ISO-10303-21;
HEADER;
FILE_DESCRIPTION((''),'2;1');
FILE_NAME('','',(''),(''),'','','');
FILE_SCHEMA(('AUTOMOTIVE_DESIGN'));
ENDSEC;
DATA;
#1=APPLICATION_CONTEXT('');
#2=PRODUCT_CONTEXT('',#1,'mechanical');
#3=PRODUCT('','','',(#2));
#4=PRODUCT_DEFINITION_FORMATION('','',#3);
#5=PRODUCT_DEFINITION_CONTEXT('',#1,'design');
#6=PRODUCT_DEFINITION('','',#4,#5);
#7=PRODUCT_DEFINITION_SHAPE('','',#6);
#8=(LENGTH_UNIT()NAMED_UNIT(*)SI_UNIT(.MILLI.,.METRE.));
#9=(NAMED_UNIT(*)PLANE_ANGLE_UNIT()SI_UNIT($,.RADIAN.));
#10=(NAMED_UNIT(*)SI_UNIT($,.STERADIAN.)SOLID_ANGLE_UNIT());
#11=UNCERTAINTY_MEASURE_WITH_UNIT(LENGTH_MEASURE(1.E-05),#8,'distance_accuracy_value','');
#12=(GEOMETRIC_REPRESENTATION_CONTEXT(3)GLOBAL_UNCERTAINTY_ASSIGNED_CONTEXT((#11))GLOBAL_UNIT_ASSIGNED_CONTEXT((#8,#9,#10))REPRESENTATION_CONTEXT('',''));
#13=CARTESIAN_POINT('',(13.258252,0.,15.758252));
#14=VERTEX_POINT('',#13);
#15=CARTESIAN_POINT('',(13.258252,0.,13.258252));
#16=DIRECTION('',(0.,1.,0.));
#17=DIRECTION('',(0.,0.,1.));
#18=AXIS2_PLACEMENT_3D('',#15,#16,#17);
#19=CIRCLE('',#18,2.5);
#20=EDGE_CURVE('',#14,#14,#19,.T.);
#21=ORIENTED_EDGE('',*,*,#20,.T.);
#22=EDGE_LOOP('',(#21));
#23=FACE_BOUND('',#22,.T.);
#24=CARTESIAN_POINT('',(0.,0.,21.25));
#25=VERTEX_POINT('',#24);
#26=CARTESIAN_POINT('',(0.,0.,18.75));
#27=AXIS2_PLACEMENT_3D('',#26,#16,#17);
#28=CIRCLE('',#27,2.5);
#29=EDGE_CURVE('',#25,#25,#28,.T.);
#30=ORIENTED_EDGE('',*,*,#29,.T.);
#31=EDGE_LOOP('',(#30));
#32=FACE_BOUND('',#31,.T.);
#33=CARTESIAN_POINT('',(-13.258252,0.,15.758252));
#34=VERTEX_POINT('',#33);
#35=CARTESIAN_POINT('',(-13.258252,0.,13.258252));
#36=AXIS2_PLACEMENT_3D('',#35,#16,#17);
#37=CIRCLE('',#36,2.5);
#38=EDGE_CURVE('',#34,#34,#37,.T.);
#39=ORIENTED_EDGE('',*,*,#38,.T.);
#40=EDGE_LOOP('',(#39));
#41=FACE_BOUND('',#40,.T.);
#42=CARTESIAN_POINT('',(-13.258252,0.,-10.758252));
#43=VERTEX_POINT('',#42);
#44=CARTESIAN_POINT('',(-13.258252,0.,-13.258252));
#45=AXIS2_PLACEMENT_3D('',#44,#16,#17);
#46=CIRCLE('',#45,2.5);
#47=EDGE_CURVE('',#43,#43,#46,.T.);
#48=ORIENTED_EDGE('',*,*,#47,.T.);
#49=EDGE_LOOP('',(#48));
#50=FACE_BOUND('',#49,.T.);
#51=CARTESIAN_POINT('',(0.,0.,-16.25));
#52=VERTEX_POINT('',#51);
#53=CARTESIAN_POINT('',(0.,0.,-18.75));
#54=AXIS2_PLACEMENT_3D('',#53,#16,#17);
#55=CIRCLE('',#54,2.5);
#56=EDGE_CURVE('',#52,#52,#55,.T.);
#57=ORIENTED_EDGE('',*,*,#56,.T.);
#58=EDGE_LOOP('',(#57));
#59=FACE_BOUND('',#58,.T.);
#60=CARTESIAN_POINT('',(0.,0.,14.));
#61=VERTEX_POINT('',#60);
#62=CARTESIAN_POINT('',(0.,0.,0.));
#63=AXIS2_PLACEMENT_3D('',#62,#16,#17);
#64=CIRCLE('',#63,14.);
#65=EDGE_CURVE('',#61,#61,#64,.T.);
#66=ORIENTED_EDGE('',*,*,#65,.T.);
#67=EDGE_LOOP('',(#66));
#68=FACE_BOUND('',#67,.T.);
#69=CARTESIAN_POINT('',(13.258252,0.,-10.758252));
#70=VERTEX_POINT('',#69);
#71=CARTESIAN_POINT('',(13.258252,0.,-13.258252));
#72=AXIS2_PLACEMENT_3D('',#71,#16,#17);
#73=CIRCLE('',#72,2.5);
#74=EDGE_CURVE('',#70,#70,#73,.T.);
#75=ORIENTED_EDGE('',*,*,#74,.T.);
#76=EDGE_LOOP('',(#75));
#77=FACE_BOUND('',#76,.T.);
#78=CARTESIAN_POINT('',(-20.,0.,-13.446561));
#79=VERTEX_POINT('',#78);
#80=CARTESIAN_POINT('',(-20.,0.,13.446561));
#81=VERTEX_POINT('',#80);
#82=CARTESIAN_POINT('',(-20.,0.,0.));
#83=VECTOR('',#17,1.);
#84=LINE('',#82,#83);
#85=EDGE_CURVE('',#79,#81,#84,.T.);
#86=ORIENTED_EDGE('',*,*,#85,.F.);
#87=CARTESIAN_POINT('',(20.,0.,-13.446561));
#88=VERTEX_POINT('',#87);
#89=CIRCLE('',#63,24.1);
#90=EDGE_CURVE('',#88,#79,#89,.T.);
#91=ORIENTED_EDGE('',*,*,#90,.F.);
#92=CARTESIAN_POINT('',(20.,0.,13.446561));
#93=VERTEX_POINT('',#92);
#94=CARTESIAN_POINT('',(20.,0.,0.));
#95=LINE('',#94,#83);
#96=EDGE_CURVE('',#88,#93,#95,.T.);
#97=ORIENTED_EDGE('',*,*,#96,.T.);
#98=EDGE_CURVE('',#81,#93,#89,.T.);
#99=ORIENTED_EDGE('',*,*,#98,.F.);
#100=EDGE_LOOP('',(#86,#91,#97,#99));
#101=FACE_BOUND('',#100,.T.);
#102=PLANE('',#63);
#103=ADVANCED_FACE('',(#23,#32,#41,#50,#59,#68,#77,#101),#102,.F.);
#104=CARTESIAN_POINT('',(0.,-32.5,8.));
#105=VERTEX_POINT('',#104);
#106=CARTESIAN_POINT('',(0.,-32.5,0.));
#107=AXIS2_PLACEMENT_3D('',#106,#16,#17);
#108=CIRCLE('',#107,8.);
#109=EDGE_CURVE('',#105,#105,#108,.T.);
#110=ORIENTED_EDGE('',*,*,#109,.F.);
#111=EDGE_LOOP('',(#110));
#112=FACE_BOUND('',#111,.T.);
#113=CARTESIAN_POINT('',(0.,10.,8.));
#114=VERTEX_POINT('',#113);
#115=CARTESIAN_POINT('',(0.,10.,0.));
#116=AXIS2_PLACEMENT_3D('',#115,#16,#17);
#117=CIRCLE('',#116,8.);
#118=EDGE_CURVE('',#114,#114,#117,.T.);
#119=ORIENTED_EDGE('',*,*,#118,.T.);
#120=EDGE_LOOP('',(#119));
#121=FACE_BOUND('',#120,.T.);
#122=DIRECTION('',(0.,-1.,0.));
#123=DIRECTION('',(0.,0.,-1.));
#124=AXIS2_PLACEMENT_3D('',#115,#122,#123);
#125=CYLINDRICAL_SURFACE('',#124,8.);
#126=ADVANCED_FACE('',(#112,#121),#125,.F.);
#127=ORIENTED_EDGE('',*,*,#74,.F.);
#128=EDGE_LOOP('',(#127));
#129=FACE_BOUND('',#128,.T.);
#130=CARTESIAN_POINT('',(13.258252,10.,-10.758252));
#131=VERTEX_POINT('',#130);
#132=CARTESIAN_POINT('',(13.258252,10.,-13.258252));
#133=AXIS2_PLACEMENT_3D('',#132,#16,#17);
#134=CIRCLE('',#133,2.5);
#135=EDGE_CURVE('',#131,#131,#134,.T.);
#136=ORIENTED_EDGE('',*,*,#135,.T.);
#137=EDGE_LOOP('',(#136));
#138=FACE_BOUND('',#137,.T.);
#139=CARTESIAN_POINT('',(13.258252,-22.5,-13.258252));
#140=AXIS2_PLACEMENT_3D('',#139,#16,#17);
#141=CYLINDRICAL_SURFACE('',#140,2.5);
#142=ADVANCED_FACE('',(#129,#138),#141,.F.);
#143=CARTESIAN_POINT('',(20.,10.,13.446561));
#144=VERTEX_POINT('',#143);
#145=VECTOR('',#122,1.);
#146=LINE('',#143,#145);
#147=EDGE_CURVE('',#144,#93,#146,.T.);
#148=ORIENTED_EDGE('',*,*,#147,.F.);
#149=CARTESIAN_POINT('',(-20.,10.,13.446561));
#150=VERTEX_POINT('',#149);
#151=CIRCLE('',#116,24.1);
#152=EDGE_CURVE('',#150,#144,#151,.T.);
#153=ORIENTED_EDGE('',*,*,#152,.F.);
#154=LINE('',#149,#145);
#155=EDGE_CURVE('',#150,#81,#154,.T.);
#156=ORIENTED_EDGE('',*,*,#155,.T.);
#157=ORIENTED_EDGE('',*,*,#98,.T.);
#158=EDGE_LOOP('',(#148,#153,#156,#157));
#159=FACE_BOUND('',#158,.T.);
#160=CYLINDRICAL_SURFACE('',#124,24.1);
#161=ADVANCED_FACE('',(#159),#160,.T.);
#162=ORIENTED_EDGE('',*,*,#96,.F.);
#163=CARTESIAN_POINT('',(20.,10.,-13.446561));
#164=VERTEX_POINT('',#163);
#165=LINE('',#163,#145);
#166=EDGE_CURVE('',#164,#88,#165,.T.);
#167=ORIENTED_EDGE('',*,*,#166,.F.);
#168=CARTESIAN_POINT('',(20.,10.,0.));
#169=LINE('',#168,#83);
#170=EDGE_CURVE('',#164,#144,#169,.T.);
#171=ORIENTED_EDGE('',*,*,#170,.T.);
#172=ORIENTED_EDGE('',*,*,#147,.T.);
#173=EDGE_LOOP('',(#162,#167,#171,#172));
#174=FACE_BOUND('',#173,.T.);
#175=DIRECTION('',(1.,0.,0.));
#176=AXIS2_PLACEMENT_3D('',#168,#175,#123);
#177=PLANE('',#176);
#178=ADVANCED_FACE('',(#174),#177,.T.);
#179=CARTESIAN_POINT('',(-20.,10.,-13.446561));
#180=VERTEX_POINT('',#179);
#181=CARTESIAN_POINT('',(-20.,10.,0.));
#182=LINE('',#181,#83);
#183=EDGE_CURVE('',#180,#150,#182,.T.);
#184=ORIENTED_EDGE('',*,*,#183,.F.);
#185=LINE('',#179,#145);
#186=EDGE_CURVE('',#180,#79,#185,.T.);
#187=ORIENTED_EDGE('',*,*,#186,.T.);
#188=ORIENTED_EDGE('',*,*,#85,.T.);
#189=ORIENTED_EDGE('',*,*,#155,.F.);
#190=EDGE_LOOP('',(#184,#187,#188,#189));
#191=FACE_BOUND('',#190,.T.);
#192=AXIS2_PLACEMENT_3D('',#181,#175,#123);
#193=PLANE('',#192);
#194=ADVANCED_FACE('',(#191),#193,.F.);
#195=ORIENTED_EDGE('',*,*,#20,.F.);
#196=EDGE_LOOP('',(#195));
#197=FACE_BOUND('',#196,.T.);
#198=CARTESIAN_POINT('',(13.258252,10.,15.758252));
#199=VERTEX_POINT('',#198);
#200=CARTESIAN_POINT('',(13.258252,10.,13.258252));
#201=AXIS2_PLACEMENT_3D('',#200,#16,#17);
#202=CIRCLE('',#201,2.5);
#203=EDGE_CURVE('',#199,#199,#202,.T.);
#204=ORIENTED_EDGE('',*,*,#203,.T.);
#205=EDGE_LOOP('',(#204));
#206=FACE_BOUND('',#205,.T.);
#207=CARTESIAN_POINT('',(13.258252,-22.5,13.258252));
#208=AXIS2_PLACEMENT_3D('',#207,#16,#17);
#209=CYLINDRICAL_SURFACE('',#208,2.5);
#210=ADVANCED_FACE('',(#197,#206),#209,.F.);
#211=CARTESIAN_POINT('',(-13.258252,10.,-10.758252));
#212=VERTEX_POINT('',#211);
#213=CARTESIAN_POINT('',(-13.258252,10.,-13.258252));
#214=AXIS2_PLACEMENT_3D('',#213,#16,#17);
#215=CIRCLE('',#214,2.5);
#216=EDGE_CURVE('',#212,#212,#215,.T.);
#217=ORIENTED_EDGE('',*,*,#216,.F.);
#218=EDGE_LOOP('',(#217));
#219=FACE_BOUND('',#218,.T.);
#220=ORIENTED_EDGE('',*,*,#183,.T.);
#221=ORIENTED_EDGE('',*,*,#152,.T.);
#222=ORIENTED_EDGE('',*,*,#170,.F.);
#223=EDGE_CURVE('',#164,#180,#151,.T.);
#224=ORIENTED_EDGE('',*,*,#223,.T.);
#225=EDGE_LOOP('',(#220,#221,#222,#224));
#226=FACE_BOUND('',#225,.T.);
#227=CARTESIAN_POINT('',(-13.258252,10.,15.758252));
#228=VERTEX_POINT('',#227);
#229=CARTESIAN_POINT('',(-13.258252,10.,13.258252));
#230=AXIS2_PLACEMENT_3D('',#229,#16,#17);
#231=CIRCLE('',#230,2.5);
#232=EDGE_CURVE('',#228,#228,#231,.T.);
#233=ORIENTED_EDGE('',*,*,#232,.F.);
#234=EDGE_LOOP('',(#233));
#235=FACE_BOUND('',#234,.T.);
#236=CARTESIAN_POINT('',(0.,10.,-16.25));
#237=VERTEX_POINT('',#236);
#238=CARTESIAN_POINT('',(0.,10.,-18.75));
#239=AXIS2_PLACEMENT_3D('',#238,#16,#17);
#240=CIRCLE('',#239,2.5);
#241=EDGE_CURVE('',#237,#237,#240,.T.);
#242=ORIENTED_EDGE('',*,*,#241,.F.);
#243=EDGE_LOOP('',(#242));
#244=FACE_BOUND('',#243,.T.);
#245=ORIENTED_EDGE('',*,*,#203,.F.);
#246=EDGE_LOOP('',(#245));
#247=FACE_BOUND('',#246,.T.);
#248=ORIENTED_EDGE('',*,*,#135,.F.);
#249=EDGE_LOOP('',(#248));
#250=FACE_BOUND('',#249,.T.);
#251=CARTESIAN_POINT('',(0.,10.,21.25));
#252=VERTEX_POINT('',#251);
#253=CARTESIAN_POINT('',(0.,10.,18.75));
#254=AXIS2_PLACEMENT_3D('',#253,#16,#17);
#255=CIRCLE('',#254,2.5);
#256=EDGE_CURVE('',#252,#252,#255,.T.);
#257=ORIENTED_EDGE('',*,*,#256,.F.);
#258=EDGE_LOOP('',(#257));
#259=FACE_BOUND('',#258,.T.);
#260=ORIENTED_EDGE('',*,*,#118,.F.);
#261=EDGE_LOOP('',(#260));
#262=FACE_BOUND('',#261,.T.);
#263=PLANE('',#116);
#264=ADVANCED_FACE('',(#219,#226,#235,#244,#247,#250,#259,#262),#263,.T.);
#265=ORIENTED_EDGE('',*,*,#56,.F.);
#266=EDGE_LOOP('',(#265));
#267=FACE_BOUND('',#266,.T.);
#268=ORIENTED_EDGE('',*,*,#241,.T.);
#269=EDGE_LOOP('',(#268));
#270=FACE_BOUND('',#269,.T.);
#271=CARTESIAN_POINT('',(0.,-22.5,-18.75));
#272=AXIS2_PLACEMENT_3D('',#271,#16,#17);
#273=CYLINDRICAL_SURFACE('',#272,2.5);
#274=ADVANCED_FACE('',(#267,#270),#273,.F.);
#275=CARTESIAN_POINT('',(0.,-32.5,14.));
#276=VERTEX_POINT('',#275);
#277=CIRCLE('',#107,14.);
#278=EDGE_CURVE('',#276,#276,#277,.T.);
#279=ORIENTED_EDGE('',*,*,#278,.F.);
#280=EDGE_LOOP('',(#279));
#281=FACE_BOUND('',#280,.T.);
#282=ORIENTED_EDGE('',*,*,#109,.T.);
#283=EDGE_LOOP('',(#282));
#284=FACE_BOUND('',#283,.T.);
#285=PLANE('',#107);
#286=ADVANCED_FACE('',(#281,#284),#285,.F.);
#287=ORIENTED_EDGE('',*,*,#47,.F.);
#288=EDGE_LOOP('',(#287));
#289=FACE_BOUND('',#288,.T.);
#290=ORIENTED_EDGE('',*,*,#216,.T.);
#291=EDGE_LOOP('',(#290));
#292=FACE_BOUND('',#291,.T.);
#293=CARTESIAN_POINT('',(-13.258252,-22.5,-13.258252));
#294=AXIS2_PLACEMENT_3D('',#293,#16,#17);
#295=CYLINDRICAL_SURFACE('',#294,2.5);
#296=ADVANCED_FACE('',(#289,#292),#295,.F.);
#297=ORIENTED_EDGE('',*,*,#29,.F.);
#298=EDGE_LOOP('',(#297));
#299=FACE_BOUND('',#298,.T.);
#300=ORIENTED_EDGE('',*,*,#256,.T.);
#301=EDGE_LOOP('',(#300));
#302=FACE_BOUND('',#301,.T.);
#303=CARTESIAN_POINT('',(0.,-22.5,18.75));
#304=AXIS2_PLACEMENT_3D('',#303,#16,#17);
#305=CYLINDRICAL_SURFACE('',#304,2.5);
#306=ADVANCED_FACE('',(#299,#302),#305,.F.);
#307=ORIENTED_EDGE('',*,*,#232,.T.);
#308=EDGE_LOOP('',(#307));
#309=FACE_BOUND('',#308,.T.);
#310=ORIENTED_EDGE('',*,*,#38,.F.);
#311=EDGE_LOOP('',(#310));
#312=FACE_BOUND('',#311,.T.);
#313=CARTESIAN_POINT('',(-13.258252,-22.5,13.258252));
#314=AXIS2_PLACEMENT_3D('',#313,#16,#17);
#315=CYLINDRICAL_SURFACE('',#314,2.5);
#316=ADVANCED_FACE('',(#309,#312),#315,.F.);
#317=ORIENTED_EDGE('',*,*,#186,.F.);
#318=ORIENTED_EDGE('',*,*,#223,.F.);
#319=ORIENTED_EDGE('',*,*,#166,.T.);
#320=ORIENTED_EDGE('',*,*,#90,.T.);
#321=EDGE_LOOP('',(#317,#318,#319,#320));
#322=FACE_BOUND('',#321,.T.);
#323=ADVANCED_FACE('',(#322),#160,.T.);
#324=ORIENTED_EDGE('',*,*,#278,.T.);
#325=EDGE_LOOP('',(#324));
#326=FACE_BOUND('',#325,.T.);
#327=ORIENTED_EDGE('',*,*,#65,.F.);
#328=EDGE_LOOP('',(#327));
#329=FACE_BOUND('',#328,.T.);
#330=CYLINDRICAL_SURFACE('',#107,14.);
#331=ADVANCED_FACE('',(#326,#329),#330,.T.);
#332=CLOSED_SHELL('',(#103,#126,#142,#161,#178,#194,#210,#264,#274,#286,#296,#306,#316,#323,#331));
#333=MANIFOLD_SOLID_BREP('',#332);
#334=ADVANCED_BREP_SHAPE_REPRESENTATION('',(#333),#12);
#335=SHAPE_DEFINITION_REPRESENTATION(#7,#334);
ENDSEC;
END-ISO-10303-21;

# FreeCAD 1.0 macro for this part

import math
import FreeCAD as App
import Part
import Sketcher

V = App.Vector

doc = App.newDocument("Part")
body = doc.addObject("PartDesign::Body", "Body")

# Sketch on XZ plane
sketch1 = doc.addObject("Sketcher::SketchObject", "Sketch")
body.addObject(sketch1)
sketch1.AttachmentSupport = (doc.XZ_Plane, [""])
sketch1.MapMode = "FlatFace"
sketch1.addGeometry(Part.ArcOfCircle(Part.Circle(V(0, 0, 0), V(0, 0, 1), 24), math.radians(-146), math.radians(-34)), False)
sketch1.addGeometry(Part.LineSegment(V(-20, -13, 0), V(-20, 13, 0)), False)
sketch1.addGeometry(Part.ArcOfCircle(Part.Circle(V(0, 0, 0), V(0, 0, 1), 24), math.radians(34), math.radians(146)), False)
sketch1.addGeometry(Part.LineSegment(V(20, 13, 0), V(20, -13, 0)), False)
sketch1.addGeometry(Part.Circle(V(0, 0, 0), V(0, 0, 1), 8), False)
sketch1.addConstraint(Sketcher.Constraint("Coincident", 0, 1, 1, 1))
sketch1.addConstraint(Sketcher.Constraint("Coincident", 1, 2, 2, 2))
sketch1.addConstraint(Sketcher.Constraint("Coincident", 2, 1, 3, 1))
sketch1.addConstraint(Sketcher.Constraint("Coincident", 3, 2, 0, 2))
sketch1.addConstraint(Sketcher.Constraint("Vertical", 1))
sketch1.addConstraint(Sketcher.Constraint("Vertical", 3))
sketch1.addConstraint(Sketcher.Constraint("Coincident", 0, 3, -1, 1))
sketch1.addConstraint(Sketcher.Constraint("Coincident", 2, 3, -1, 1))
sketch1.addConstraint(Sketcher.Constraint("Coincident", 4, 3, -1, 1))
sketch1.addConstraint(Sketcher.Constraint("Equal", 0, 2))
sketch1.addConstraint(Sketcher.Constraint("Horizontal", 1, 2, 2, 1))
sketch1.addConstraint(Sketcher.Constraint("Diameter", 4, 16.0))
sketch1.addConstraint(Sketcher.Constraint("Radius", 0, 24.1))
sketch1.addConstraint(Sketcher.Constraint("DistanceX", 0, 1, -1, 1, 20.0))
pad1 = doc.addObject("PartDesign::Pad", "Pad")
body.addObject(pad1)
pad1.Profile = sketch1
pad1.Length = 10
pad1.Reversed = True

# Sketch on XZ plane
sketch2 = doc.addObject("Sketcher::SketchObject", "Sketch001")
body.addObject(sketch2)
sketch2.AttachmentSupport = (doc.XZ_Plane, [""])
sketch2.MapMode = "FlatFace"
sketch2.addGeometry(Part.Circle(V(0, 0, 0), V(0, 0, 1), 14), False)
sketch2.addGeometry(Part.Circle(V(0, 0, 0), V(0, 0, 1), 8), False)
sketch2.addConstraint(Sketcher.Constraint("Coincident", 0, 3, -1, 1))
sketch2.addConstraint(Sketcher.Constraint("Coincident", 1, 3, -1, 1))
sketch2.addConstraint(Sketcher.Constraint("Diameter", 0, 28.0))
sketch2.addConstraint(Sketcher.Constraint("Diameter", 1, 16.0))
pad2 = doc.addObject("PartDesign::Pad", "Pad001")
body.addObject(pad2)
pad2.Profile = sketch2
pad2.Length = 32.5

# Sketch on XZ plane
sketch3 = doc.addObject("Sketcher::SketchObject", "Sketch002")
body.addObject(sketch3)
sketch3.AttachmentSupport = (doc.XZ_Plane, [""])
sketch3.MapMode = "FlatFace"
sketch3.AttachmentOffset = App.Placement(V(0, 0, -10), App.Rotation())
sketch3.addGeometry(Part.Circle(V(0, 18.8, 0), V(0, 0, 1), 2.5), False)
sketch3.addGeometry(Part.Circle(V(-13.3, 13.3, 0), V(0, 0, 1), 2.5), False)
sketch3.addGeometry(Part.Circle(V(-13.3, -13.3, 0), V(0, 0, 1), 2.5), False)
sketch3.addGeometry(Part.Circle(V(0, -18.8, 0), V(0, 0, 1), 2.5), False)
sketch3.addGeometry(Part.Circle(V(13.3, -13.3, 0), V(0, 0, 1), 2.5), False)
sketch3.addGeometry(Part.Circle(V(13.3, 13.3, 0), V(0, 0, 1), 2.5), False)
sketch3.addConstraint(Sketcher.Constraint("Equal", 0, 1))
sketch3.addConstraint(Sketcher.Constraint("Equal", 1, 2))
sketch3.addConstraint(Sketcher.Constraint("Equal", 2, 3))
sketch3.addConstraint(Sketcher.Constraint("Equal", 3, 4))
sketch3.addConstraint(Sketcher.Constraint("Equal", 4, 5))
sketch3.addConstraint(Sketcher.Constraint("Symmetric", 0, 3, 3, 3, -1, 1))
sketch3.addConstraint(Sketcher.Constraint("Symmetric", 1, 3, 4, 3, -1, 1))
sketch3.addConstraint(Sketcher.Constraint("Symmetric", 2, 3, 5, 3, -1, 1))
sketch3.addConstraint(Sketcher.Constraint("Symmetric", 2, 3, 4, 3, -2))
sketch3.addConstraint(Sketcher.Constraint("PointOnObject", 0, 3, -2))
sketch3.addConstraint(Sketcher.Constraint("Diameter", 0, 5.0))
sketch3.addConstraint(Sketcher.Constraint("DistanceY", 3, 3, 0, 3, 37.5))
sketch3.addConstraint(Sketcher.Constraint("DistanceX", 1, 3, -1, 1, 13.258252))
sketch3.addConstraint(Sketcher.Constraint("DistanceY", -1, 1, 1, 3, 13.258252))
pocket1 = doc.addObject("PartDesign::Pocket", "Pocket")
body.addObject(pocket1)
pocket1.Profile = sketch3
pocket1.Length = 32.5
pocket1.Reversed = True

doc.recompute()
